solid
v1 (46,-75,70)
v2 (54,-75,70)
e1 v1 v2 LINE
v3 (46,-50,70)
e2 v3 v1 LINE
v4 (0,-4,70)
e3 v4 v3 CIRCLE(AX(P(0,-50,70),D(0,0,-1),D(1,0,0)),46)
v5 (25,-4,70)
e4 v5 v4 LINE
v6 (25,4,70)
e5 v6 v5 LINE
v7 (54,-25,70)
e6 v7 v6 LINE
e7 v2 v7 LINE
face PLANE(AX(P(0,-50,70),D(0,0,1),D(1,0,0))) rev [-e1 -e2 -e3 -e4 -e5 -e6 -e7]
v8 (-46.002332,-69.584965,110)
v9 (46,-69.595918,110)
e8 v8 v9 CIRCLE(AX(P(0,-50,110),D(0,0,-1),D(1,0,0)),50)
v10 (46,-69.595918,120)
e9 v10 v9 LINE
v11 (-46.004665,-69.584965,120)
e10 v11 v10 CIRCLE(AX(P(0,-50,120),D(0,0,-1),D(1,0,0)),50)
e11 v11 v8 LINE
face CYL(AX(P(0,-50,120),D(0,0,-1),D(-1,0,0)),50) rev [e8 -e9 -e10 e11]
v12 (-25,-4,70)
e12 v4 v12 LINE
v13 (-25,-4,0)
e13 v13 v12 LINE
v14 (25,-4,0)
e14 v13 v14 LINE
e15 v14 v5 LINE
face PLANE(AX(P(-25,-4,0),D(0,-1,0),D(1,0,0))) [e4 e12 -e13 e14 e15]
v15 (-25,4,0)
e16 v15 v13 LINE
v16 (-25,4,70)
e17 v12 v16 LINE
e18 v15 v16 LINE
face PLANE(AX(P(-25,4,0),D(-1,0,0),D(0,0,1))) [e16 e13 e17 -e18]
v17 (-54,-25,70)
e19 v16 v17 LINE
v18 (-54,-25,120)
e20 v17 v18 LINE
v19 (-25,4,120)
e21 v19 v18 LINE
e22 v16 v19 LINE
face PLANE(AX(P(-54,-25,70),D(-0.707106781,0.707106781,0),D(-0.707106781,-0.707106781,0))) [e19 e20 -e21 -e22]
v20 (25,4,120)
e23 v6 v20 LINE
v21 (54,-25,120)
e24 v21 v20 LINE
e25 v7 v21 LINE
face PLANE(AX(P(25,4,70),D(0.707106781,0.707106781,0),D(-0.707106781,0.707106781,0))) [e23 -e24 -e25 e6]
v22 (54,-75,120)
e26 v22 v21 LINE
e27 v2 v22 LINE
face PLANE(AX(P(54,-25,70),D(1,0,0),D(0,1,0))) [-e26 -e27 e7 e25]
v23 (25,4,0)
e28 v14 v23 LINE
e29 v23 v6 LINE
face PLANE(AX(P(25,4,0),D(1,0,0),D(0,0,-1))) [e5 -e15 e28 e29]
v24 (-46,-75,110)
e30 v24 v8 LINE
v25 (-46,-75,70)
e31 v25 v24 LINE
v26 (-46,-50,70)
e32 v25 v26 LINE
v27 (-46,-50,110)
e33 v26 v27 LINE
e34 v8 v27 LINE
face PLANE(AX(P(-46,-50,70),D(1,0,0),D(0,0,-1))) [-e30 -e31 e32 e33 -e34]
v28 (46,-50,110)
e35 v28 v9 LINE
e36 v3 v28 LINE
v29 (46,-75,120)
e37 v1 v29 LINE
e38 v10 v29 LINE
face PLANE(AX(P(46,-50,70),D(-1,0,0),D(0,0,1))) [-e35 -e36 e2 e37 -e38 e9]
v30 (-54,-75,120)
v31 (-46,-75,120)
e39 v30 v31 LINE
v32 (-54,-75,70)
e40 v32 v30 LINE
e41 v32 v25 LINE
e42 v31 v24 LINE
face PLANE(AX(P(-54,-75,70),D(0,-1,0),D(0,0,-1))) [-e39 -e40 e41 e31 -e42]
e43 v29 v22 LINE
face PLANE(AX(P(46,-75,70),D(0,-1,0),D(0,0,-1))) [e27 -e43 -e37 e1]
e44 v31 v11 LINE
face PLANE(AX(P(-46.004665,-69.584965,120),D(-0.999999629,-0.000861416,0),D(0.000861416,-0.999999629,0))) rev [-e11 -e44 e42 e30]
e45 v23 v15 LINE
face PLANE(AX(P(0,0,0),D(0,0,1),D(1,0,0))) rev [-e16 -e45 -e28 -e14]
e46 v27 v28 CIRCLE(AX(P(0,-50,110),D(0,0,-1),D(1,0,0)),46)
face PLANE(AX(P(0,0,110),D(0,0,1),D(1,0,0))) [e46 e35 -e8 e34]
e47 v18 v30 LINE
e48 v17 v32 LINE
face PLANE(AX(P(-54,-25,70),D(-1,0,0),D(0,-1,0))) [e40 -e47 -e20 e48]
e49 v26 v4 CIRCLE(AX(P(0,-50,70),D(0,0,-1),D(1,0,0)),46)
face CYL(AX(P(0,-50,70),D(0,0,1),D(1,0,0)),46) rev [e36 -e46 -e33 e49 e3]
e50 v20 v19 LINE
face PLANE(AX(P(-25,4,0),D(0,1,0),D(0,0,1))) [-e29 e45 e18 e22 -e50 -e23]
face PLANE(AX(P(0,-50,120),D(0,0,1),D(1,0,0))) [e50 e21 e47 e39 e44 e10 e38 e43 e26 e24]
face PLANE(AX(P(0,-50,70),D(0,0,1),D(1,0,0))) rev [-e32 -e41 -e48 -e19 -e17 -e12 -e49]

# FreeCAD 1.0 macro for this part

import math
import FreeCAD as App
import Part
import Sketcher
Q = App.Units.Quantity

doc = App.newDocument("Part")
params = doc.addObject("Spreadsheet::Sheet", "Params")
for row, (alias, value) in enumerate([
    ("sketch1_width", "50 mm"),
    ("sketch1_height", "8 mm"),
    ("sketch2_height", "110 mm"),
    ("sketch3_radius", "46 mm"),
    ("sketch3_width", "8 mm"),
    ("sketch3_width2", "50 mm"),
    ("sketch3_height", "25 mm"),
    ("pad1_length", "40 mm"),
    ("sketch4_radius", "50 mm"),
    ("sketch4_width", "8 mm"),
    ("sketch4_width2", "50 mm"),
    ("pad2_length", "10 mm"),
], start=1):
    params.set(f"A{row}", alias)
    params.set(f"B{row}", "=" + value)
    params.setAlias(f"B{row}", alias)

body = doc.addObject("PartDesign::Body", "Body")

sketch1 = body.newObject("Sketcher::SketchObject", "Sketch")
sketch1.AttachmentSupport = (doc.getObject("XY_Plane"), [""])
sketch1.MapMode = "FlatFace"
sketch1.addGeometry(Part.LineSegment(App.Vector(-25, 4, 0), App.Vector(-25, -4, 0)), False)
sketch1.addGeometry(Part.LineSegment(App.Vector(-25, -4, 0), App.Vector(25, -4, 0)), False)
sketch1.addGeometry(Part.LineSegment(App.Vector(25, -4, 0), App.Vector(25, 4, 0)), False)
sketch1.addGeometry(Part.LineSegment(App.Vector(25, 4, 0), App.Vector(-25, 4, 0)), False)
sketch1.addConstraint(Sketcher.Constraint("Coincident", 0, 2, 1, 1))
sketch1.addConstraint(Sketcher.Constraint("Coincident", 1, 2, 2, 1))
sketch1.addConstraint(Sketcher.Constraint("Coincident", 2, 2, 3, 1))
sketch1.addConstraint(Sketcher.Constraint("Coincident", 3, 2, 0, 1))
sketch1.addConstraint(Sketcher.Constraint("Vertical", 0))
sketch1.addConstraint(Sketcher.Constraint("Horizontal", 1))
sketch1.addConstraint(Sketcher.Constraint("Vertical", 2))
sketch1.addConstraint(Sketcher.Constraint("Horizontal", 3))
sketch1.addConstraint(Sketcher.Constraint("Symmetric", 0, 2, 2, 2, -1, 1))
sketch1.addConstraint(Sketcher.Constraint("DistanceX", 1, 1, 1, 2, Q("50 mm")))
sketch1.addConstraint(Sketcher.Constraint("DistanceY", 0, 2, 0, 1, Q("8 mm")))
sketch1.setExpression("Constraints[9]", "Params.sketch1_width")
sketch1.setExpression("Constraints[10]", "Params.sketch1_height")

sketch2 = body.newObject("Sketcher::SketchObject", "Sketch001")
sketch2.AttachmentSupport = (doc.getObject("XZ_Plane"), [""])
sketch2.MapMode = "FlatFace"
sketch2.AttachmentOffset = App.Placement(App.Vector(0, 0, -55.298324), App.Rotation())
sketch2.addGeometry(Part.LineSegment(App.Vector(0, 0, 0), App.Vector(0, 110, 0)), False)
sketch2.addConstraint(Sketcher.Constraint("Vertical", 0))
sketch2.addConstraint(Sketcher.Constraint("Coincident", 0, 1, -1, 1))
sketch2.addConstraint(Sketcher.Constraint("DistanceY", 0, 1, 0, 2, Q("110 mm")))
sketch2.setExpression("Constraints[2]", "Params.sketch2_height")
doc.recompute()

additivepipe = body.newObject("PartDesign::AdditivePipe", "AdditivePipe")
additivepipe.Profile = sketch1
additivepipe.Spine = (sketch2, ["Edge1"])

sketch3 = body.newObject("Sketcher::SketchObject", "Sketch002")
sketch3.AttachmentSupport = (doc.getObject("XY_Plane"), [""])
sketch3.MapMode = "FlatFace"
sketch3.AttachmentOffset = App.Placement(App.Vector(0, 0, 110), App.Rotation())
sketch3.addGeometry(Part.LineSegment(App.Vector(-25, 4, 0), App.Vector(-54, -25, 0)), False)
sketch3.addGeometry(Part.LineSegment(App.Vector(-54, -25, 0), App.Vector(-54, -75, 0)), False)
sketch3.addGeometry(Part.LineSegment(App.Vector(-54, -75, 0), App.Vector(-46, -75, 0)), False)
sketch3.addGeometry(Part.LineSegment(App.Vector(-46, -75, 0), App.Vector(-46, -50, 0)), False)
sketch3.addGeometry(Part.ArcOfCircle(Part.Circle(App.Vector(0, -50, 0), App.Vector(0, 0, 1), 46), math.radians(0), math.radians(180)), False)
sketch3.addGeometry(Part.LineSegment(App.Vector(46, -50, 0), App.Vector(46, -75, 0)), False)
sketch3.addGeometry(Part.LineSegment(App.Vector(46, -75, 0), App.Vector(54, -75, 0)), False)
sketch3.addGeometry(Part.LineSegment(App.Vector(54, -75, 0), App.Vector(54, -25, 0)), False)
sketch3.addGeometry(Part.LineSegment(App.Vector(54, -25, 0), App.Vector(25, 4, 0)), False)
sketch3.addGeometry(Part.LineSegment(App.Vector(25, 4, 0), App.Vector(-25, 4, 0)), False)
sketch3.addConstraint(Sketcher.Constraint("Coincident", 0, 2, 1, 1))
sketch3.addConstraint(Sketcher.Constraint("Coincident", 1, 2, 2, 1))
sketch3.addConstraint(Sketcher.Constraint("Coincident", 2, 2, 3, 1))
sketch3.addConstraint(Sketcher.Constraint("Tangent", 3, 2, 4, 2))
sketch3.addConstraint(Sketcher.Constraint("Tangent", 4, 1, 5, 1))
sketch3.addConstraint(Sketcher.Constraint("Coincident", 5, 2, 6, 1))
sketch3.addConstraint(Sketcher.Constraint("Coincident", 6, 2, 7, 1))
sketch3.addConstraint(Sketcher.Constraint("Coincident", 7, 2, 8, 1))
sketch3.addConstraint(Sketcher.Constraint("Coincident", 8, 2, 9, 1))
sketch3.addConstraint(Sketcher.Constraint("Coincident", 9, 2, 0, 1))
sketch3.addConstraint(Sketcher.Constraint("Vertical", 1))
sketch3.addConstraint(Sketcher.Constraint("Horizontal", 2))
sketch3.addConstraint(Sketcher.Constraint("Vertical", 3))
sketch3.addConstraint(Sketcher.Constraint("Vertical", 5))
sketch3.addConstraint(Sketcher.Constraint("Horizontal", 6))
sketch3.addConstraint(Sketcher.Constraint("Vertical", 7))
sketch3.addConstraint(Sketcher.Constraint("Horizontal", 9))
sketch3.addConstraint(Sketcher.Constraint("Symmetric", 2, 2, 5, 2, -2))
sketch3.addConstraint(Sketcher.Constraint("Symmetric", 0, 2, 7, 2, -2))
sketch3.addConstraint(Sketcher.Constraint("Perpendicular", 0, 8))
sketch3.addConstraint(Sketcher.Constraint("Equal", 9, 1))
sketch3.addConstraint(Sketcher.Constraint("Equal", 0, 8))
sketch3.addConstraint(Sketcher.Constraint("Radius", 4, Q("46 mm")))
sketch3.addConstraint(Sketcher.Constraint("DistanceX", 2, 1, 2, 2, Q("8 mm")))
sketch3.addConstraint(Sketcher.Constraint("DistanceX", 9, 2, 9, 1, Q("50 mm")))
sketch3.addConstraint(Sketcher.Constraint("DistanceY", 3, 1, 3, 2, Q("25 mm")))
sketch3.addConstraint(Sketcher.Constraint("DistanceY", 4, 3, -1, 1, Q("50 mm")))
sketch3.setExpression("Constraints[22]", "Params.sketch3_radius")
sketch3.setExpression("Constraints[23]", "Params.sketch3_width")
sketch3.setExpression("Constraints[24]", "Params.sketch3_width2")
sketch3.setExpression("Constraints[25]", "Params.sketch3_height")
pad1 = body.newObject("PartDesign::Pad", "Pad")
pad1.Profile = sketch3
pad1.setExpression("Length", "Params.pad1_length")
pad1.Reversed = True

sketch4 = body.newObject("Sketcher::SketchObject", "Sketch003")
sketch4.AttachmentSupport = (doc.getObject("XY_Plane"), [""])
sketch4.MapMode = "FlatFace"
sketch4.AttachmentOffset = App.Placement(App.Vector(0, 0, 110), App.Rotation())
sketch4.addGeometry(Part.LineSegment(App.Vector(-46, -75, 0), App.Vector(-46, -70, 0)), False)
sketch4.addGeometry(Part.ArcOfCircle(Part.Circle(App.Vector(0, -50, 0), App.Vector(0, 0, 1), 50), math.radians(-23), math.radians(203)), False)
sketch4.addGeometry(Part.LineSegment(App.Vector(46, -70, 0), App.Vector(46, -75, 0)), False)
sketch4.addGeometry(Part.LineSegment(App.Vector(46, -75, 0), App.Vector(54, -75, 0)), False)
sketch4.addGeometry(Part.LineSegment(App.Vector(54, -75, 0), App.Vector(54, -25, 0)), False)
sketch4.addGeometry(Part.LineSegment(App.Vector(54, -25, 0), App.Vector(25, 4, 0)), False)
sketch4.addGeometry(Part.LineSegment(App.Vector(25, 4, 0), App.Vector(-25, 4, 0)), False)
sketch4.addGeometry(Part.LineSegment(App.Vector(-25, 4, 0), App.Vector(-54, -25, 0)), False)
sketch4.addGeometry(Part.LineSegment(App.Vector(-54, -25, 0), App.Vector(-54, -75, 0)), False)
sketch4.addGeometry(Part.LineSegment(App.Vector(-54, -75, 0), App.Vector(-46, -75, 0)), False)
sketch4.addConstraint(Sketcher.Constraint("Coincident", 0, 2, 1, 2))
sketch4.addConstraint(Sketcher.Constraint("Coincident", 1, 1, 2, 1))
sketch4.addConstraint(Sketcher.Constraint("Coincident", 2, 2, 3, 1))
sketch4.addConstraint(Sketcher.Constraint("Coincident", 3, 2, 4, 1))
sketch4.addConstraint(Sketcher.Constraint("Coincident", 4, 2, 5, 1))
sketch4.addConstraint(Sketcher.Constraint("Coincident", 5, 2, 6, 1))
sketch4.addConstraint(Sketcher.Constraint("Coincident", 6, 2, 7, 1))
sketch4.addConstraint(Sketcher.Constraint("Coincident", 7, 2, 8, 1))
sketch4.addConstraint(Sketcher.Constraint("Coincident", 8, 2, 9, 1))
sketch4.addConstraint(Sketcher.Constraint("Coincident", 9, 2, 0, 1))
sketch4.addConstraint(Sketcher.Constraint("Vertical", 2))
sketch4.addConstraint(Sketcher.Constraint("Horizontal", 3))
sketch4.addConstraint(Sketcher.Constraint("Vertical", 4))
sketch4.addConstraint(Sketcher.Constraint("Horizontal", 6))
sketch4.addConstraint(Sketcher.Constraint("Vertical", 8))
sketch4.addConstraint(Sketcher.Constraint("Horizontal", 9))
sketch4.addConstraint(Sketcher.Constraint("Symmetric", 4, 2, 7, 2, -2))
sketch4.addConstraint(Sketcher.Constraint("Symmetric", 2, 2, 9, 2, -2))
sketch4.addConstraint(Sketcher.Constraint("PointOnObject", 1, 3, -2))
sketch4.addConstraint(Sketcher.Constraint("Perpendicular", 5, 7))
sketch4.addConstraint(Sketcher.Constraint("Equal", 6, 4))
sketch4.addConstraint(Sketcher.Constraint("Equal", 5, 7))
sketch4.addConstraint(Sketcher.Constraint("Radius", 1, Q("50 mm")))
sketch4.addConstraint(Sketcher.Constraint("DistanceX", 3, 1, 3, 2, Q("8 mm")))
sketch4.addConstraint(Sketcher.Constraint("DistanceX", 6, 2, 6, 1, Q("50 mm")))
sketch4.addConstraint(Sketcher.Constraint("DistanceY", 1, 3, -1, 1, Q("50 mm")))
sketch4.addConstraint(Sketcher.Constraint("DistanceX", -1, 1, 1, 1, Q("46 mm")))
sketch4.addConstraint(Sketcher.Constraint("DistanceY", 2, 2, -1, 1, Q("75 mm")))
sketch4.addConstraint(Sketcher.Constraint("Distance", 0, Q("5.415037 mm")))
sketch4.setExpression("Constraints[22]", "Params.sketch4_radius")
sketch4.setExpression("Constraints[23]", "Params.sketch4_width")
sketch4.setExpression("Constraints[24]", "Params.sketch4_width2")
pad2 = body.newObject("PartDesign::Pad", "Pad001")
pad2.Profile = sketch4
pad2.setExpression("Length", "Params.pad2_length")

doc.recompute()
